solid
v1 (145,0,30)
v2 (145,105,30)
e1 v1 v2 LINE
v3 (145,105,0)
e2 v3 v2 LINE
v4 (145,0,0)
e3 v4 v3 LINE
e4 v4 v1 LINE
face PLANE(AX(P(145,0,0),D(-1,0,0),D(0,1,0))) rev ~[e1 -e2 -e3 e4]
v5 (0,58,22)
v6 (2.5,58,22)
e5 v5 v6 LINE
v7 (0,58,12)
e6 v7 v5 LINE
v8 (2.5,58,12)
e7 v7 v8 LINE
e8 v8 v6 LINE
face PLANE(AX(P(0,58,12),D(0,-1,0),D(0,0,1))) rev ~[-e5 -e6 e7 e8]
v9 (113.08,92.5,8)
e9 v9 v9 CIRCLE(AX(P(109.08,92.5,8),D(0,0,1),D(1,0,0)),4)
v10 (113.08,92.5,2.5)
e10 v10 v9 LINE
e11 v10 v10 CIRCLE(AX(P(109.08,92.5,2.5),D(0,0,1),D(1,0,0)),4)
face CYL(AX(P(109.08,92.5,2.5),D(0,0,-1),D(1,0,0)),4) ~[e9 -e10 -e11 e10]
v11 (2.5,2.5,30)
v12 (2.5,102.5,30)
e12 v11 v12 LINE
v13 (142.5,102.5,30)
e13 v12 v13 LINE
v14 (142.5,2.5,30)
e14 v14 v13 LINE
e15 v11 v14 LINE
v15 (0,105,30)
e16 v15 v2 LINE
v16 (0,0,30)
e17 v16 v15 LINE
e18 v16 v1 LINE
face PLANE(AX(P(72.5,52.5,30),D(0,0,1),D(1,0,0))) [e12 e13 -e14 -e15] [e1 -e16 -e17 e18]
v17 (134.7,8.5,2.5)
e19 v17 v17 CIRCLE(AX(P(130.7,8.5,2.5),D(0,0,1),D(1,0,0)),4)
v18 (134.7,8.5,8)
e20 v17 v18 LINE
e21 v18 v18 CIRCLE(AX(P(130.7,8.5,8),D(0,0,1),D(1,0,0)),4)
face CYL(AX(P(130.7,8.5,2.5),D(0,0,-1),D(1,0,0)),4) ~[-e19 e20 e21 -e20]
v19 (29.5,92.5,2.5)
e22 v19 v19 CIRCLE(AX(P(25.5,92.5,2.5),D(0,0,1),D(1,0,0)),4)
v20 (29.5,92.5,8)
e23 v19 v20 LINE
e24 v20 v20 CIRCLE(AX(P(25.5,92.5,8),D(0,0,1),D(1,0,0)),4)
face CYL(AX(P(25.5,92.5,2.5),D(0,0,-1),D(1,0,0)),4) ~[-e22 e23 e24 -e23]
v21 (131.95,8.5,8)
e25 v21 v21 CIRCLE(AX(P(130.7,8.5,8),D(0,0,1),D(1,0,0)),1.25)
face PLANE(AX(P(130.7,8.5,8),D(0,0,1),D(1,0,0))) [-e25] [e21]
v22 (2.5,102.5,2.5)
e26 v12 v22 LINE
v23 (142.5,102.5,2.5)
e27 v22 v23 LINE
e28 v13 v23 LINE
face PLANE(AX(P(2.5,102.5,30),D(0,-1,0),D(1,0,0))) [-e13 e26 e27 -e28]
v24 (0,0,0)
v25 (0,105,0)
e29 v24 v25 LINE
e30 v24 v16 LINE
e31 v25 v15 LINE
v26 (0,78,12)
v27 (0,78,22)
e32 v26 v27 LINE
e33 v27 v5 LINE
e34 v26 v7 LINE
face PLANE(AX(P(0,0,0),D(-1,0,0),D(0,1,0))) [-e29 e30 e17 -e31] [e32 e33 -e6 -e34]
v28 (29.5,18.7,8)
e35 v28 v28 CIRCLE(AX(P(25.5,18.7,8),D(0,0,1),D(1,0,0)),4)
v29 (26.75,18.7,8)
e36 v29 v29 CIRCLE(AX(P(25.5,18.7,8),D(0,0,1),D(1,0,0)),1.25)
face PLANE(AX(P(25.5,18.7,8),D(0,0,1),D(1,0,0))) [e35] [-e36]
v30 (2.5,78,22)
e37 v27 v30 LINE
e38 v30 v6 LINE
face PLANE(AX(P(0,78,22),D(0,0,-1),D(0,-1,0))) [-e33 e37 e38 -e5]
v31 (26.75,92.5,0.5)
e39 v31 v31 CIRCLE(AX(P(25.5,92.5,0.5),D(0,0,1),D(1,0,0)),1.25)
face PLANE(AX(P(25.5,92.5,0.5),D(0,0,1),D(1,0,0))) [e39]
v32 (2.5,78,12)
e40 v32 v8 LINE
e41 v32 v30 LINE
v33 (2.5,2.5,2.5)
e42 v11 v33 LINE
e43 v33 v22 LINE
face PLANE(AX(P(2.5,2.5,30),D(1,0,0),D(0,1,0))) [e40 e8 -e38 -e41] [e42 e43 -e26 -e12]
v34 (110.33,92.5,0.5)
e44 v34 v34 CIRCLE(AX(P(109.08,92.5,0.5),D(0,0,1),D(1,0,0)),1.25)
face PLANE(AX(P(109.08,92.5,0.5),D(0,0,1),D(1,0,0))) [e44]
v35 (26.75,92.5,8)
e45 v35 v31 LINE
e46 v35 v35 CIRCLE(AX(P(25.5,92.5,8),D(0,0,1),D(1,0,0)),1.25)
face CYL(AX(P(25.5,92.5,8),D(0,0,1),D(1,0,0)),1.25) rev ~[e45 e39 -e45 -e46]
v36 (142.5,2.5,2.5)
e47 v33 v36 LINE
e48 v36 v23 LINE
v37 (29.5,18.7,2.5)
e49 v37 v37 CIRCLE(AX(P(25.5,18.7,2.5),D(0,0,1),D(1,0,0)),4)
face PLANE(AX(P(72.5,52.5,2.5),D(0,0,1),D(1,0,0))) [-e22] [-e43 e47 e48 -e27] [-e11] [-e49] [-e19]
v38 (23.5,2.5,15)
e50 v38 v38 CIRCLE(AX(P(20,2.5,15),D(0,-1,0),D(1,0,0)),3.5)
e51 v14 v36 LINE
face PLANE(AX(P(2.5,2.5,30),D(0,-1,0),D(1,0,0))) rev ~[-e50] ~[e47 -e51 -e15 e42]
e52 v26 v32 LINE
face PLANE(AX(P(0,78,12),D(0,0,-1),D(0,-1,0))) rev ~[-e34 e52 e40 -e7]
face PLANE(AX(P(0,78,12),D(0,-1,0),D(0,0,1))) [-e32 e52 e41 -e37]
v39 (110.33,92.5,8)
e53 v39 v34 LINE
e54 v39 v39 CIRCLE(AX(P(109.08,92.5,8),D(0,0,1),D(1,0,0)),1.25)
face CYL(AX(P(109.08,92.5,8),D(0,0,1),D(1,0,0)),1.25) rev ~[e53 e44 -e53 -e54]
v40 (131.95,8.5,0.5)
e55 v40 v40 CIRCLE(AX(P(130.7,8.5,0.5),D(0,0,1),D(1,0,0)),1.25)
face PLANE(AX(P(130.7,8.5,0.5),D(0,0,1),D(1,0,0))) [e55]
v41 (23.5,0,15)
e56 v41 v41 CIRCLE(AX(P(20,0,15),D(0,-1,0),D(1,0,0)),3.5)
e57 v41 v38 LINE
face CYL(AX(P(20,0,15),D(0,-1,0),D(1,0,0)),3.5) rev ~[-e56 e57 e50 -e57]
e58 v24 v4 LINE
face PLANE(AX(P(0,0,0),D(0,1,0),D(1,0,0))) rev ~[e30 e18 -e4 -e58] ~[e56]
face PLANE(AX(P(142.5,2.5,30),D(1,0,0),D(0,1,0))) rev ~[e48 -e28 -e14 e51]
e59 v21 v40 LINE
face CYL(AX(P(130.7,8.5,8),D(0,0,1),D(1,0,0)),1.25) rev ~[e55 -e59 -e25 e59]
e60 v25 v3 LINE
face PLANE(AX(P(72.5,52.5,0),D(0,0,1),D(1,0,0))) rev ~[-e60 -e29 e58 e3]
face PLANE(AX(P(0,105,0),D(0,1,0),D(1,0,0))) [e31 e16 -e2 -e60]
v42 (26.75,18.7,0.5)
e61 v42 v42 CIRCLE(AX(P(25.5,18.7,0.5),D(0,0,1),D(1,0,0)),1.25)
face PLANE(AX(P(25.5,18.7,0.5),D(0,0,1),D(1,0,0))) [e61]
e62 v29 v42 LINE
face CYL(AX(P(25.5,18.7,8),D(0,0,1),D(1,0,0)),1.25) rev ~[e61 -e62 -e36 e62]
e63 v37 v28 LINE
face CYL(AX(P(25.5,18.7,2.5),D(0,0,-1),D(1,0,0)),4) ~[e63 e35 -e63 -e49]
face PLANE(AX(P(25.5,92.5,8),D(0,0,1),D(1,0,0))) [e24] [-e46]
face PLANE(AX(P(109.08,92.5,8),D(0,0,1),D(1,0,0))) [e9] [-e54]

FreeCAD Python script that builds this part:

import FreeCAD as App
import Part
import Sketcher
from FreeCAD import Vector
Q = App.Units.Quantity


def add_polygon(sketch, points):
    """Adds a closed chain of lines whose ends are joined by coincident constraints."""
    first, n = sketch.GeometryCount, len(points)
    for a, b in zip(points, points[1:] + points[:1]):
        sketch.addGeometry(Part.LineSegment(App.Vector(*a, 0), App.Vector(*b, 0)), False)
    for i in range(n):
        sketch.addConstraint(Sketcher.Constraint("Coincident", first + i, 2, first + (i + 1) % n, 1))

doc = App.newDocument("Part")
body = doc.addObject("PartDesign::Body", "Body")

# Sketch on XY plane
sketch1 = body.newObject("Sketcher::SketchObject", "Sketch")
sketch1.AttachmentSupport = (doc.getObject("XY_Plane"), [""])
sketch1.MapMode = "FlatFace"
add_polygon(sketch1, [(0, 105), (0, 0), (145, 0), (145, 105)])  # lines 0-3
sketch1.addConstraint(Sketcher.Constraint("Vertical", 0))
sketch1.addConstraint(Sketcher.Constraint("Horizontal", 1))
sketch1.addConstraint(Sketcher.Constraint("Vertical", 2))
sketch1.addConstraint(Sketcher.Constraint("Horizontal", 3))
sketch1.addConstraint(Sketcher.Constraint("Coincident", 0, 2, -1, 1))
sketch1.addConstraint(Sketcher.Constraint("DistanceX", 1, 1, 1, 2, Q("145 mm")))
sketch1.addConstraint(Sketcher.Constraint("DistanceY", 0, 2, 0, 1, Q("105 mm")))
pad1 = body.newObject("PartDesign::Pad", "Pad")
pad1.Profile = sketch1
pad1.Length = 30

# Sketch on XY plane
sketch2 = body.newObject("Sketcher::SketchObject", "Sketch001")
sketch2.AttachmentSupport = (doc.getObject("XY_Plane"), [""])
sketch2.MapMode = "FlatFace"
sketch2.AttachmentOffset = App.Placement(Vector(0, 0, 30), App.Rotation())
add_polygon(sketch2, [(2, 102), (2, 2), (142, 2), (142, 102)])  # lines 0-3
sketch2.addConstraint(Sketcher.Constraint("Vertical", 0))
sketch2.addConstraint(Sketcher.Constraint("Horizontal", 1))
sketch2.addConstraint(Sketcher.Constraint("Vertical", 2))
sketch2.addConstraint(Sketcher.Constraint("Horizontal", 3))
sketch2.addConstraint(Sketcher.Constraint("DistanceX", 1, 1, 1, 2, Q("140 mm")))
sketch2.addConstraint(Sketcher.Constraint("DistanceY", 0, 2, 0, 1, Q("100 mm")))
sketch2.addConstraint(Sketcher.Constraint("DistanceX", -1, 1, 0, 2, Q("2.5 mm")))
sketch2.addConstraint(Sketcher.Constraint("DistanceY", -1, 1, 0, 2, Q("2.5 mm")))
pocket1 = body.newObject("PartDesign::Pocket", "Pocket")
pocket1.Profile = sketch2
pocket1.Length = 27.5

# Sketch on XY plane
sketch3 = body.newObject("Sketcher::SketchObject", "Sketch002")
sketch3.AttachmentSupport = (doc.getObject("XY_Plane"), [""])
sketch3.MapMode = "FlatFace"
sketch3.AttachmentOffset = App.Placement(Vector(0, 0, 2.5), App.Rotation())
sketch3.addGeometry(Part.Circle(Vector(25.5, 92.5, 0), Vector(0, 0, 1), 4), False)
sketch3.addGeometry(Part.Circle(Vector(25.5, 92.5, 0), Vector(0, 0, 1), 1), False)
sketch3.addGeometry(Part.Circle(Vector(109.1, 92.5, 0), Vector(0, 0, 1), 4), False)
sketch3.addGeometry(Part.Circle(Vector(109.1, 92.5, 0), Vector(0, 0, 1), 1), False)
sketch3.addGeometry(Part.Circle(Vector(25.5, 18.7, 0), Vector(0, 0, 1), 4), False)
sketch3.addGeometry(Part.Circle(Vector(25.5, 18.7, 0), Vector(0, 0, 1), 1), False)
sketch3.addGeometry(Part.Circle(Vector(130.7, 8.5, 0), Vector(0, 0, 1), 4), False)
sketch3.addGeometry(Part.Circle(Vector(130.7, 8.5, 0), Vector(0, 0, 1), 1), False)
sketch3.addConstraint(Sketcher.Constraint("Coincident", 1, 3, 0, 3))
sketch3.addConstraint(Sketcher.Constraint("Coincident", 3, 3, 2, 3))
sketch3.addConstraint(Sketcher.Constraint("Coincident", 5, 3, 4, 3))
sketch3.addConstraint(Sketcher.Constraint("Coincident", 7, 3, 6, 3))
sketch3.addConstraint(Sketcher.Constraint("Equal", 0, 2))
sketch3.addConstraint(Sketcher.Constraint("Equal", 1, 3))
sketch3.addConstraint(Sketcher.Constraint("Equal", 2, 4))
sketch3.addConstraint(Sketcher.Constraint("Equal", 3, 5))
sketch3.addConstraint(Sketcher.Constraint("Equal", 4, 6))
sketch3.addConstraint(Sketcher.Constraint("Equal", 5, 7))
sketch3.addConstraint(Sketcher.Constraint("Horizontal", 1, 3, 2, 3))
sketch3.addConstraint(Sketcher.Constraint("Vertical", 1, 3, 4, 3))
sketch3.addConstraint(Sketcher.Constraint("Diameter", 0, Q("8 mm")))
sketch3.addConstraint(Sketcher.Constraint("Diameter", 1, Q("2 mm")))
sketch3.addConstraint(Sketcher.Constraint("DistanceY", 6, 3, 2, 3, Q("84 mm")))
sketch3.addConstraint(Sketcher.Constraint("DistanceX", -1, 1, 0, 3, Q("25.5 mm")))
sketch3.addConstraint(Sketcher.Constraint("DistanceY", -1, 1, 0, 3, Q("92.5 mm")))
sketch3.addConstraint(Sketcher.Constraint("DistanceY", -1, 1, 4, 3, Q("18.7 mm")))
sketch3.addConstraint(Sketcher.Constraint("DistanceX", -1, 1, 6, 3, Q("130.7 mm")))
sketch3.addConstraint(Sketcher.Constraint("DistanceX", -1, 1, 2, 3, Q("109.08 mm")))
pad2 = body.newObject("PartDesign::Pad", "Pad001")
pad2.Profile = sketch3
pad2.Length = 5.5

# Sketch on YZ plane
sketch4 = body.newObject("Sketcher::SketchObject", "Sketch003")
sketch4.AttachmentSupport = (doc.getObject("YZ_Plane"), [""])
sketch4.MapMode = "FlatFace"
add_polygon(sketch4, [(78, 22), (78, 12), (58, 12), (58, 22)])  # lines 0-3
sketch4.addConstraint(Sketcher.Constraint("Vertical", 0))
sketch4.addConstraint(Sketcher.Constraint("Horizontal", 1))
sketch4.addConstraint(Sketcher.Constraint("Vertical", 2))
sketch4.addConstraint(Sketcher.Constraint("Horizontal", 3))
sketch4.addConstraint(Sketcher.Constraint("DistanceX", 1, 2, 1, 1, Q("20 mm")))
sketch4.addConstraint(Sketcher.Constraint("DistanceY", 0, 2, 0, 1, Q("10 mm")))
sketch4.addConstraint(Sketcher.Constraint("DistanceX", -1, 1, 0, 2, Q("78 mm")))
sketch4.addConstraint(Sketcher.Constraint("DistanceY", -1, 1, 0, 2, Q("12 mm")))
pocket2 = body.newObject("PartDesign::Pocket", "Pocket001")
pocket2.Profile = sketch4
pocket2.Length = 2.5
pocket2.Reversed = True

# Sketch on XZ plane
sketch5 = body.newObject("Sketcher::SketchObject", "Sketch004")
sketch5.AttachmentSupport = (doc.getObject("XZ_Plane"), [""])
sketch5.MapMode = "FlatFace"
sketch5.addGeometry(Part.Circle(Vector(20, 15, 0), Vector(0, 0, 1), 3.5), False)
sketch5.addConstraint(Sketcher.Constraint("Diameter", 0, Q("7 mm")))
sketch5.addConstraint(Sketcher.Constraint("DistanceX", -1, 1, 0, 3, Q("20 mm")))
sketch5.addConstraint(Sketcher.Constraint("DistanceY", -1, 1, 0, 3, Q("15 mm")))
pocket3 = body.newObject("PartDesign::Pocket", "Pocket002")
pocket3.Profile = sketch5
pocket3.Length = 2.5

# Sketch on XY plane
sketch6 = body.newObject("Sketcher::SketchObject", "Sketch005")
sketch6.AttachmentSupport = (doc.getObject("XY_Plane"), [""])
sketch6.MapMode = "FlatFace"
sketch6.AttachmentOffset = App.Placement(Vector(0, 0, 8), App.Rotation())
sketch6.addGeometry(Part.Circle(Vector(25.5, 92.5, 0), Vector(0, 0, 1), 1.2), False)
sketch6.addGeometry(Part.Circle(Vector(109.1, 92.5, 0), Vector(0, 0, 1), 1.2), False)
sketch6.addGeometry(Part.Circle(Vector(25.5, 18.7, 0), Vector(0, 0, 1), 1.2), False)
sketch6.addGeometry(Part.Circle(Vector(130.7, 8.5, 0), Vector(0, 0, 1), 1.2), False)
sketch6.addConstraint(Sketcher.Constraint("Equal", 0, 1))
sketch6.addConstraint(Sketcher.Constraint("Equal", 1, 2))
sketch6.addConstraint(Sketcher.Constraint("Equal", 2, 3))
sketch6.addConstraint(Sketcher.Constraint("Horizontal", 0, 3, 1, 3))
sketch6.addConstraint(Sketcher.Constraint("Vertical", 0, 3, 2, 3))
sketch6.addConstraint(Sketcher.Constraint("Diameter", 0, Q("2.5 mm")))
sketch6.addConstraint(Sketcher.Constraint("DistanceY", 3, 3, 1, 3, Q("84 mm")))
sketch6.addConstraint(Sketcher.Constraint("DistanceX", -1, 1, 0, 3, Q("25.5 mm")))
sketch6.addConstraint(Sketcher.Constraint("DistanceY", -1, 1, 0, 3, Q("92.5 mm")))
sketch6.addConstraint(Sketcher.Constraint("DistanceY", -1, 1, 2, 3, Q("18.7 mm")))
sketch6.addConstraint(Sketcher.Constraint("DistanceX", -1, 1, 3, 3, Q("130.7 mm")))
sketch6.addConstraint(Sketcher.Constraint("DistanceX", -1, 1, 1, 3, Q("109.08 mm")))
pocket4 = body.newObject("PartDesign::Pocket", "Pocket003")
pocket4.Profile = sketch6
pocket4.Length = 7.5

doc.recompute()
